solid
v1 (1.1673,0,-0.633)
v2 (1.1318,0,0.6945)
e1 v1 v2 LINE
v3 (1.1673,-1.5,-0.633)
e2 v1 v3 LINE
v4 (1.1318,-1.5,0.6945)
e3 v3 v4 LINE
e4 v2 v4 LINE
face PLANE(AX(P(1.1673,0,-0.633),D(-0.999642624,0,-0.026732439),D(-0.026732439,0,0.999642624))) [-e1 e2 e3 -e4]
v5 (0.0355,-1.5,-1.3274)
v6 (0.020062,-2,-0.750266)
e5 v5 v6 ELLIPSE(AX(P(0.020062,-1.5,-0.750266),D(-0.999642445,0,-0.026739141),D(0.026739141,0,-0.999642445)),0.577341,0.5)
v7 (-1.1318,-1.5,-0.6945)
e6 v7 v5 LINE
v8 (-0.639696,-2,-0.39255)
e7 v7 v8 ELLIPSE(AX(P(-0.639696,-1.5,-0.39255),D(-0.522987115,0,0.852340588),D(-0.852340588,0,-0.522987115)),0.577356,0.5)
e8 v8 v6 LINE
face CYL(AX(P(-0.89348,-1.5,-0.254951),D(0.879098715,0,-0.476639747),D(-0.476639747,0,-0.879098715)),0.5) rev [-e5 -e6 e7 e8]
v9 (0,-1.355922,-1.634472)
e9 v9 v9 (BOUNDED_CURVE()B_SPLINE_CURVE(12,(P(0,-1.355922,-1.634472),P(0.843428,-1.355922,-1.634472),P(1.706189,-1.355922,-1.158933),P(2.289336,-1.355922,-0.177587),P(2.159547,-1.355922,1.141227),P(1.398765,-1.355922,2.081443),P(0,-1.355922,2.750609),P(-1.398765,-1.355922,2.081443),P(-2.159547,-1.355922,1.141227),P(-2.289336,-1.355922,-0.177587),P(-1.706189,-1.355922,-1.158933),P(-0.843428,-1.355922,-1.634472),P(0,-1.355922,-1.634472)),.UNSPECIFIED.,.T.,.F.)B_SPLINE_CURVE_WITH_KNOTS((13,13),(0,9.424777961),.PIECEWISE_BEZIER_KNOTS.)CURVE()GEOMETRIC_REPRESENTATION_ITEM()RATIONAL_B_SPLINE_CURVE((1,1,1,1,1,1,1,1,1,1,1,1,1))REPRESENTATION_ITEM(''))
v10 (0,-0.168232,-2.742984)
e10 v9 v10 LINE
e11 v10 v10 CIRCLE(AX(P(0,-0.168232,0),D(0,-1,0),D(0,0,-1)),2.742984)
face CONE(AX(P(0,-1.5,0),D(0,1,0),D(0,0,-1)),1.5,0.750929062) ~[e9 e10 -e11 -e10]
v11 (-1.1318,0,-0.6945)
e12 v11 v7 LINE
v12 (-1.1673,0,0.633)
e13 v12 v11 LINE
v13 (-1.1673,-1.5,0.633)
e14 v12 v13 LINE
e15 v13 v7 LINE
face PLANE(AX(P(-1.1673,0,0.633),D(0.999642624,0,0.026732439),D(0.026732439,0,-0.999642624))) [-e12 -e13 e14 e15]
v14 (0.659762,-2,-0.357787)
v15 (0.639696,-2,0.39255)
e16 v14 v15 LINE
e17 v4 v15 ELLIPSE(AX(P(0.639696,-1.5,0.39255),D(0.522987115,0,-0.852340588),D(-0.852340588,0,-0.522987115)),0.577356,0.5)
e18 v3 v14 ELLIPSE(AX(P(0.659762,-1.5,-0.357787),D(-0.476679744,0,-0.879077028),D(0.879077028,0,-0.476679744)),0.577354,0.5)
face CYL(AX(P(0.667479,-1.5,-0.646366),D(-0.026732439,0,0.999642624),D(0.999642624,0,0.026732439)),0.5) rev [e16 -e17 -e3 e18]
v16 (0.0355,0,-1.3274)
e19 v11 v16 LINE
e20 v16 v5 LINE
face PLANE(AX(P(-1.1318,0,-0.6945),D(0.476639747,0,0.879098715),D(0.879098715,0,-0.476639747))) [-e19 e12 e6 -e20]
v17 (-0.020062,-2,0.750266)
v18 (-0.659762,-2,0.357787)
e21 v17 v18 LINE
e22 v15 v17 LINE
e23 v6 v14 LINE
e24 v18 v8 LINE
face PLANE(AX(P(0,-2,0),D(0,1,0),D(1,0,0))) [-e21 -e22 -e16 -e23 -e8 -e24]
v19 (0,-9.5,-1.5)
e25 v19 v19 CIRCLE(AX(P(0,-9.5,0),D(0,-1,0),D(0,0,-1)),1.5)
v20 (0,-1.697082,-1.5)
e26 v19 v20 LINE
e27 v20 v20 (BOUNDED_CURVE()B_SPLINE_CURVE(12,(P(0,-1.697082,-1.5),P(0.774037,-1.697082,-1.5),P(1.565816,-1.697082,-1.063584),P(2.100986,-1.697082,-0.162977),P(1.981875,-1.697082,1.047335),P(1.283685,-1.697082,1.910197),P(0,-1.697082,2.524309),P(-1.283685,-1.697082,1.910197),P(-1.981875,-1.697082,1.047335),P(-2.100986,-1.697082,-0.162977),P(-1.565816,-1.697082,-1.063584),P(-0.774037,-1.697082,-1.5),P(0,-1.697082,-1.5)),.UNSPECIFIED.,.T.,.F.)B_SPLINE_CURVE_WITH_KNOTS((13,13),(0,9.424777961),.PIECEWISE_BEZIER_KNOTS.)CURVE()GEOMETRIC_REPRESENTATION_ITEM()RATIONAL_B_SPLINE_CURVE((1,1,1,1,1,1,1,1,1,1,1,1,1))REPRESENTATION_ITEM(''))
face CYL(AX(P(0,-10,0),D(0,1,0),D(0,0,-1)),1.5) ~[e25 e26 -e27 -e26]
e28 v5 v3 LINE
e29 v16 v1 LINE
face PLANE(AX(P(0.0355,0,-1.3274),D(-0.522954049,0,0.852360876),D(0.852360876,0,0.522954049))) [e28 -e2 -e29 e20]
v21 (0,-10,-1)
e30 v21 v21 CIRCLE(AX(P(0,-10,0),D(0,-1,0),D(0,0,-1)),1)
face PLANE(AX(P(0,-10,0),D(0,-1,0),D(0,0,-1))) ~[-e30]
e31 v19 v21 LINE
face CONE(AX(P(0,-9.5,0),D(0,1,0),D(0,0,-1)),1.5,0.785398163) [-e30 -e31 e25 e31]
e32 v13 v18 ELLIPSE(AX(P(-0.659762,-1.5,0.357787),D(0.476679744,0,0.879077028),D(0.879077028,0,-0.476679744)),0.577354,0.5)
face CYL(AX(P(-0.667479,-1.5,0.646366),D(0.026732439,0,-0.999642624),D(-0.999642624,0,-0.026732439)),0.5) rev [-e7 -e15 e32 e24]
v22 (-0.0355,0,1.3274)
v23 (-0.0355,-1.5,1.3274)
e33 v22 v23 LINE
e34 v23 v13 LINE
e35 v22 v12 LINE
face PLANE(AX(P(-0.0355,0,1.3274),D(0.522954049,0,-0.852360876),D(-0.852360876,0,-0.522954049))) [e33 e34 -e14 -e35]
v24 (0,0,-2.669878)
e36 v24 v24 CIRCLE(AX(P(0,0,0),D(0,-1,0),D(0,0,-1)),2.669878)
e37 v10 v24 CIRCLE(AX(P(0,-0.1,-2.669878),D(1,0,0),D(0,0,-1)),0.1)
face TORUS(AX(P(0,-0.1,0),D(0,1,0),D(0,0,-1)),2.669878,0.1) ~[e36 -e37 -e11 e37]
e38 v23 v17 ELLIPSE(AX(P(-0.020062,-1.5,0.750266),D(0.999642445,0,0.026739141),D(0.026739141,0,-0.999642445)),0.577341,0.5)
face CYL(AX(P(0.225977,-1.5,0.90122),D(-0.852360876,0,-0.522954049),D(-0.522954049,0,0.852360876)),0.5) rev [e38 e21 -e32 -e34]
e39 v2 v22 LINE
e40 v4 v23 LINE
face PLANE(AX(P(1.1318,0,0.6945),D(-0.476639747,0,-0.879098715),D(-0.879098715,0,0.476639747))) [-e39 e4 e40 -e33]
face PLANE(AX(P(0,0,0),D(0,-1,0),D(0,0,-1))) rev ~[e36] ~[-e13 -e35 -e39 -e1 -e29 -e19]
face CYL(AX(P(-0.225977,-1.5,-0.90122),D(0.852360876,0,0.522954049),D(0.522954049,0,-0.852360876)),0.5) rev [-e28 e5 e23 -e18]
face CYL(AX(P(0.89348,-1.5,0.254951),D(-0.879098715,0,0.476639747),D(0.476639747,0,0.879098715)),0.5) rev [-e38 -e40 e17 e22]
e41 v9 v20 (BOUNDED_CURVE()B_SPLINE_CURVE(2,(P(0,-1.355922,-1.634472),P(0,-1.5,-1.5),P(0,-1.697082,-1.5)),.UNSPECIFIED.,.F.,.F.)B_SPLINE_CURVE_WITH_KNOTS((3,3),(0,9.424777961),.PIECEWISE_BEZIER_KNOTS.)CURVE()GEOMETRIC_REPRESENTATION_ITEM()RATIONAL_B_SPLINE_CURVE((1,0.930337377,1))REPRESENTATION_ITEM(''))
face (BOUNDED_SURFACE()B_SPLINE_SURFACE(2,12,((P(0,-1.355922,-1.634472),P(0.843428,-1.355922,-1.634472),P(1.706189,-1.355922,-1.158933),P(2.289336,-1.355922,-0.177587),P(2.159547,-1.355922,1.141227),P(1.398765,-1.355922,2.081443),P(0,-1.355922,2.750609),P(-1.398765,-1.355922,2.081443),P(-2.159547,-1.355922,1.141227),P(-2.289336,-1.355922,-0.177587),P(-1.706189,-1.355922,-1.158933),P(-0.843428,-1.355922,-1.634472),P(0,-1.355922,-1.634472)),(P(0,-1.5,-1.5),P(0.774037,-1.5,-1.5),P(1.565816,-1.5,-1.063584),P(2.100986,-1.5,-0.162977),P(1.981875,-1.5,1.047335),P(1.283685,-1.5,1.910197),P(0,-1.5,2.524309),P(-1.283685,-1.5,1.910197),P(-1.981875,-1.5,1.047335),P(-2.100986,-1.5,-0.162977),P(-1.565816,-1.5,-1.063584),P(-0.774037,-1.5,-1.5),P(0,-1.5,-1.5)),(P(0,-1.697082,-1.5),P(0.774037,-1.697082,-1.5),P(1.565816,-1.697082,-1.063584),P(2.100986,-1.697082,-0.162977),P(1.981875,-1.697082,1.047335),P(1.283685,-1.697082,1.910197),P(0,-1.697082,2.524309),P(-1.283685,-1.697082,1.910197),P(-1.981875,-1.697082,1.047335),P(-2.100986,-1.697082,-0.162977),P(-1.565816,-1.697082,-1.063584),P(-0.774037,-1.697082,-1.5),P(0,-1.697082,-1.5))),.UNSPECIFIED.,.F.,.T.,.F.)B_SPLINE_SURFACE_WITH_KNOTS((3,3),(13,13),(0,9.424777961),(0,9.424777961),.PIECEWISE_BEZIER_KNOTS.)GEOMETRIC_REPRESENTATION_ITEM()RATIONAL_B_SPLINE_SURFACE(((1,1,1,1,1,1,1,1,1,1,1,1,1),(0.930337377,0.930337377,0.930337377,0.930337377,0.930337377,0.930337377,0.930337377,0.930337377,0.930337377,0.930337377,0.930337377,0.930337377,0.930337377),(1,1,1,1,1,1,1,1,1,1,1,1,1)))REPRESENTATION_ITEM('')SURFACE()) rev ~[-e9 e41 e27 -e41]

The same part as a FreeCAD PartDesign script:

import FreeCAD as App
import Part
import Sketcher
from FreeCAD import Vector
Q = App.Units.Quantity


def edges_at(feature, points):
    """Names of the edges that pass closest to the given points."""
    edges = feature.Shape.Edges
    near = lambda p: min(range(len(edges)), key=lambda i: edges[i].distToShape(Part.Vertex(*p))[0])
    return sorted({f"Edge{near(p) + 1}" for p in points})

doc = App.newDocument("Part")
params = doc.addObject("Spreadsheet::Sheet", "Params")
for row, (alias, value) in enumerate([
    ("sketch1_width", "10 mm"),
    ("sketch1_height", "1.5 mm"),
    ("sketch1_height2", "2.9 mm"),
    ("revolution_angle", "360 deg"),
    ("pocket1_length", "2 mm"),
    ("fillet_radius", "0.5 mm"),
    ("fillet2_radius", "0.5 mm"),
    ("fillet3_radius", "0.1 mm"),
    ("chamfer_size", "0.5 mm"),
], start=1):
    params.set(f"A{row}", alias)
    params.set(f"B{row}", "=" + value)
    params.setAlias(f"B{row}", alias)

body = doc.addObject("PartDesign::Body", "Body")

# Sketch on YZ plane
sketch1 = body.newObject("Sketcher::SketchObject", "Sketch")
sketch1.AttachmentSupport = (doc.getObject("YZ_Plane"), [""])
sketch1.MapMode = "FlatFace"
sketch1.addGeometry([
    Part.LineSegment(Vector(-1.5, -1.5, 0), Vector(0, -2.9, 0)),  # 0
    Part.LineSegment(Vector(0, -2.9, 0), Vector(0, 0, 0)),  # 1
    Part.LineSegment(Vector(0, 0, 0), Vector(-10, 0, 0)),  # 2
    Part.LineSegment(Vector(-10, 0, 0), Vector(-10, -1.5, 0)),  # 3
    Part.LineSegment(Vector(-10, -1.5, 0), Vector(-1.5, -1.5, 0)),  # 4
], False)
sketch1.addConstraint([
    Sketcher.Constraint("Coincident", 0, 2, 1, 1),
    Sketcher.Constraint("Coincident", 1, 2, 2, 1),
    Sketcher.Constraint("Coincident", 2, 2, 3, 1),
    Sketcher.Constraint("Coincident", 3, 2, 4, 1),
    Sketcher.Constraint("Coincident", 4, 2, 0, 1),
    Sketcher.Constraint("Vertical", 1),
    Sketcher.Constraint("Horizontal", 2),
    Sketcher.Constraint("Vertical", 3),
    Sketcher.Constraint("Horizontal", 4),
    Sketcher.Constraint("Coincident", 1, 2, -1, 1),
    Sketcher.Constraint("DistanceX", 2, 2, 2, 1, Q("10 mm")),
    Sketcher.Constraint("DistanceY", 3, 2, 3, 1, Q("1.5 mm")),
    Sketcher.Constraint("DistanceX", 4, 2, -1, 1, Q("1.5 mm")),
    Sketcher.Constraint("DistanceY", 1, 1, 1, 2, Q("2.9 mm")),
])
sketch1.setExpression("Constraints[10]", "Params.sketch1_width")
sketch1.setExpression("Constraints[11]", "Params.sketch1_height")
sketch1.setExpression("Constraints[13]", "Params.sketch1_height2")
revolution = body.newObject("PartDesign::Revolution", "Revolution")
revolution.Profile = sketch1
revolution.ReferenceAxis = (sketch1, ["H_Axis"])
revolution.setExpression("Angle", "Params.revolution_angle")

# Sketch on XZ plane
sketch2 = body.newObject("Sketcher::SketchObject", "Sketch001")
sketch2.AttachmentSupport = (doc.getObject("XZ_Plane"), [""])
sketch2.MapMode = "FlatFace"
sketch2.addGeometry([
    Part.LineSegment(Vector(-1.1, -0.7, 0), Vector(-1.2, 0.6, 0)),  # 0
    Part.LineSegment(Vector(-1.2, 0.6, 0), Vector(0, 1.3, 0)),  # 1
    Part.LineSegment(Vector(0, 1.3, 0), Vector(1.1, 0.7, 0)),  # 2
    Part.LineSegment(Vector(1.1, 0.7, 0), Vector(1.2, -0.6, 0)),  # 3
    Part.LineSegment(Vector(1.2, -0.6, 0), Vector(0, -1.3, 0)),  # 4
    Part.LineSegment(Vector(0, -1.3, 0), Vector(-1.1, -0.7, 0)),  # 5
], False)
sketch2.addConstraint([
    Sketcher.Constraint("Coincident", 0, 2, 1, 1),
    Sketcher.Constraint("Coincident", 1, 2, 2, 1),
    Sketcher.Constraint("Coincident", 2, 2, 3, 1),
    Sketcher.Constraint("Coincident", 3, 2, 4, 1),
    Sketcher.Constraint("Coincident", 4, 2, 5, 1),
    Sketcher.Constraint("Coincident", 5, 2, 0, 1),
    Sketcher.Constraint("Symmetric", 0, 2, 3, 2, -1, 1),
    Sketcher.Constraint("Symmetric", 1, 2, 4, 2, -1, 1),
    Sketcher.Constraint("Symmetric", 2, 2, 5, 2, -1, 1),
    Sketcher.Constraint("Equal", 0, 1),
    Sketcher.Constraint("Equal", 1, 2),
    Sketcher.Constraint("Angle", 1, Q("31.5306 deg")),
    Sketcher.Constraint("Distance", 0, Q("1.328 mm")),
    Sketcher.Constraint("DistanceY", -1, 1, 0, 2, Q("0.633 mm")),
    Sketcher.Constraint("DistanceY", 2, 2, 1, 2, Q("0.633 mm")),
])
pocket1 = body.newObject("PartDesign::Pocket", "Pocket")
pocket1.Profile = sketch2
pocket1.setExpression("Length", "Params.pocket1_length")
pocket1.Reversed = True
doc.recompute()

fillet = body.newObject("PartDesign::Fillet", "Fillet")
fillet.Base = (pocket1, edges_at(pocket1, [
    (-1.15, -2, -0.031),
    (-0.601, -2, 0.98),
    (-0.548, -2, -1.011),
    (0.601, -2, -0.98),
    (0.548, -2, 1.011),
    (1.15, -2, 0.031),
]))
fillet.setExpression("Radius", "Params.fillet_radius")
doc.recompute()

fillet2 = body.newObject("PartDesign::Fillet", "Fillet001")
fillet2.Base = (fillet, edges_at(fillet, [(0, -1.5, 1.5)]))
fillet2.setExpression("Radius", "Params.fillet2_radius")
doc.recompute()

fillet3 = body.newObject("PartDesign::Fillet", "Fillet002")
fillet3.Base = (fillet2, edges_at(fillet2, [(0, 0, 2.9)]))
fillet3.setExpression("Radius", "Params.fillet3_radius")
doc.recompute()

chamfer = body.newObject("PartDesign::Chamfer", "Chamfer")
chamfer.Base = (fillet3, edges_at(fillet3, [(0, -10, 1.5)]))
chamfer.setExpression("Size", "Params.chamfer_size")

doc.recompute()
